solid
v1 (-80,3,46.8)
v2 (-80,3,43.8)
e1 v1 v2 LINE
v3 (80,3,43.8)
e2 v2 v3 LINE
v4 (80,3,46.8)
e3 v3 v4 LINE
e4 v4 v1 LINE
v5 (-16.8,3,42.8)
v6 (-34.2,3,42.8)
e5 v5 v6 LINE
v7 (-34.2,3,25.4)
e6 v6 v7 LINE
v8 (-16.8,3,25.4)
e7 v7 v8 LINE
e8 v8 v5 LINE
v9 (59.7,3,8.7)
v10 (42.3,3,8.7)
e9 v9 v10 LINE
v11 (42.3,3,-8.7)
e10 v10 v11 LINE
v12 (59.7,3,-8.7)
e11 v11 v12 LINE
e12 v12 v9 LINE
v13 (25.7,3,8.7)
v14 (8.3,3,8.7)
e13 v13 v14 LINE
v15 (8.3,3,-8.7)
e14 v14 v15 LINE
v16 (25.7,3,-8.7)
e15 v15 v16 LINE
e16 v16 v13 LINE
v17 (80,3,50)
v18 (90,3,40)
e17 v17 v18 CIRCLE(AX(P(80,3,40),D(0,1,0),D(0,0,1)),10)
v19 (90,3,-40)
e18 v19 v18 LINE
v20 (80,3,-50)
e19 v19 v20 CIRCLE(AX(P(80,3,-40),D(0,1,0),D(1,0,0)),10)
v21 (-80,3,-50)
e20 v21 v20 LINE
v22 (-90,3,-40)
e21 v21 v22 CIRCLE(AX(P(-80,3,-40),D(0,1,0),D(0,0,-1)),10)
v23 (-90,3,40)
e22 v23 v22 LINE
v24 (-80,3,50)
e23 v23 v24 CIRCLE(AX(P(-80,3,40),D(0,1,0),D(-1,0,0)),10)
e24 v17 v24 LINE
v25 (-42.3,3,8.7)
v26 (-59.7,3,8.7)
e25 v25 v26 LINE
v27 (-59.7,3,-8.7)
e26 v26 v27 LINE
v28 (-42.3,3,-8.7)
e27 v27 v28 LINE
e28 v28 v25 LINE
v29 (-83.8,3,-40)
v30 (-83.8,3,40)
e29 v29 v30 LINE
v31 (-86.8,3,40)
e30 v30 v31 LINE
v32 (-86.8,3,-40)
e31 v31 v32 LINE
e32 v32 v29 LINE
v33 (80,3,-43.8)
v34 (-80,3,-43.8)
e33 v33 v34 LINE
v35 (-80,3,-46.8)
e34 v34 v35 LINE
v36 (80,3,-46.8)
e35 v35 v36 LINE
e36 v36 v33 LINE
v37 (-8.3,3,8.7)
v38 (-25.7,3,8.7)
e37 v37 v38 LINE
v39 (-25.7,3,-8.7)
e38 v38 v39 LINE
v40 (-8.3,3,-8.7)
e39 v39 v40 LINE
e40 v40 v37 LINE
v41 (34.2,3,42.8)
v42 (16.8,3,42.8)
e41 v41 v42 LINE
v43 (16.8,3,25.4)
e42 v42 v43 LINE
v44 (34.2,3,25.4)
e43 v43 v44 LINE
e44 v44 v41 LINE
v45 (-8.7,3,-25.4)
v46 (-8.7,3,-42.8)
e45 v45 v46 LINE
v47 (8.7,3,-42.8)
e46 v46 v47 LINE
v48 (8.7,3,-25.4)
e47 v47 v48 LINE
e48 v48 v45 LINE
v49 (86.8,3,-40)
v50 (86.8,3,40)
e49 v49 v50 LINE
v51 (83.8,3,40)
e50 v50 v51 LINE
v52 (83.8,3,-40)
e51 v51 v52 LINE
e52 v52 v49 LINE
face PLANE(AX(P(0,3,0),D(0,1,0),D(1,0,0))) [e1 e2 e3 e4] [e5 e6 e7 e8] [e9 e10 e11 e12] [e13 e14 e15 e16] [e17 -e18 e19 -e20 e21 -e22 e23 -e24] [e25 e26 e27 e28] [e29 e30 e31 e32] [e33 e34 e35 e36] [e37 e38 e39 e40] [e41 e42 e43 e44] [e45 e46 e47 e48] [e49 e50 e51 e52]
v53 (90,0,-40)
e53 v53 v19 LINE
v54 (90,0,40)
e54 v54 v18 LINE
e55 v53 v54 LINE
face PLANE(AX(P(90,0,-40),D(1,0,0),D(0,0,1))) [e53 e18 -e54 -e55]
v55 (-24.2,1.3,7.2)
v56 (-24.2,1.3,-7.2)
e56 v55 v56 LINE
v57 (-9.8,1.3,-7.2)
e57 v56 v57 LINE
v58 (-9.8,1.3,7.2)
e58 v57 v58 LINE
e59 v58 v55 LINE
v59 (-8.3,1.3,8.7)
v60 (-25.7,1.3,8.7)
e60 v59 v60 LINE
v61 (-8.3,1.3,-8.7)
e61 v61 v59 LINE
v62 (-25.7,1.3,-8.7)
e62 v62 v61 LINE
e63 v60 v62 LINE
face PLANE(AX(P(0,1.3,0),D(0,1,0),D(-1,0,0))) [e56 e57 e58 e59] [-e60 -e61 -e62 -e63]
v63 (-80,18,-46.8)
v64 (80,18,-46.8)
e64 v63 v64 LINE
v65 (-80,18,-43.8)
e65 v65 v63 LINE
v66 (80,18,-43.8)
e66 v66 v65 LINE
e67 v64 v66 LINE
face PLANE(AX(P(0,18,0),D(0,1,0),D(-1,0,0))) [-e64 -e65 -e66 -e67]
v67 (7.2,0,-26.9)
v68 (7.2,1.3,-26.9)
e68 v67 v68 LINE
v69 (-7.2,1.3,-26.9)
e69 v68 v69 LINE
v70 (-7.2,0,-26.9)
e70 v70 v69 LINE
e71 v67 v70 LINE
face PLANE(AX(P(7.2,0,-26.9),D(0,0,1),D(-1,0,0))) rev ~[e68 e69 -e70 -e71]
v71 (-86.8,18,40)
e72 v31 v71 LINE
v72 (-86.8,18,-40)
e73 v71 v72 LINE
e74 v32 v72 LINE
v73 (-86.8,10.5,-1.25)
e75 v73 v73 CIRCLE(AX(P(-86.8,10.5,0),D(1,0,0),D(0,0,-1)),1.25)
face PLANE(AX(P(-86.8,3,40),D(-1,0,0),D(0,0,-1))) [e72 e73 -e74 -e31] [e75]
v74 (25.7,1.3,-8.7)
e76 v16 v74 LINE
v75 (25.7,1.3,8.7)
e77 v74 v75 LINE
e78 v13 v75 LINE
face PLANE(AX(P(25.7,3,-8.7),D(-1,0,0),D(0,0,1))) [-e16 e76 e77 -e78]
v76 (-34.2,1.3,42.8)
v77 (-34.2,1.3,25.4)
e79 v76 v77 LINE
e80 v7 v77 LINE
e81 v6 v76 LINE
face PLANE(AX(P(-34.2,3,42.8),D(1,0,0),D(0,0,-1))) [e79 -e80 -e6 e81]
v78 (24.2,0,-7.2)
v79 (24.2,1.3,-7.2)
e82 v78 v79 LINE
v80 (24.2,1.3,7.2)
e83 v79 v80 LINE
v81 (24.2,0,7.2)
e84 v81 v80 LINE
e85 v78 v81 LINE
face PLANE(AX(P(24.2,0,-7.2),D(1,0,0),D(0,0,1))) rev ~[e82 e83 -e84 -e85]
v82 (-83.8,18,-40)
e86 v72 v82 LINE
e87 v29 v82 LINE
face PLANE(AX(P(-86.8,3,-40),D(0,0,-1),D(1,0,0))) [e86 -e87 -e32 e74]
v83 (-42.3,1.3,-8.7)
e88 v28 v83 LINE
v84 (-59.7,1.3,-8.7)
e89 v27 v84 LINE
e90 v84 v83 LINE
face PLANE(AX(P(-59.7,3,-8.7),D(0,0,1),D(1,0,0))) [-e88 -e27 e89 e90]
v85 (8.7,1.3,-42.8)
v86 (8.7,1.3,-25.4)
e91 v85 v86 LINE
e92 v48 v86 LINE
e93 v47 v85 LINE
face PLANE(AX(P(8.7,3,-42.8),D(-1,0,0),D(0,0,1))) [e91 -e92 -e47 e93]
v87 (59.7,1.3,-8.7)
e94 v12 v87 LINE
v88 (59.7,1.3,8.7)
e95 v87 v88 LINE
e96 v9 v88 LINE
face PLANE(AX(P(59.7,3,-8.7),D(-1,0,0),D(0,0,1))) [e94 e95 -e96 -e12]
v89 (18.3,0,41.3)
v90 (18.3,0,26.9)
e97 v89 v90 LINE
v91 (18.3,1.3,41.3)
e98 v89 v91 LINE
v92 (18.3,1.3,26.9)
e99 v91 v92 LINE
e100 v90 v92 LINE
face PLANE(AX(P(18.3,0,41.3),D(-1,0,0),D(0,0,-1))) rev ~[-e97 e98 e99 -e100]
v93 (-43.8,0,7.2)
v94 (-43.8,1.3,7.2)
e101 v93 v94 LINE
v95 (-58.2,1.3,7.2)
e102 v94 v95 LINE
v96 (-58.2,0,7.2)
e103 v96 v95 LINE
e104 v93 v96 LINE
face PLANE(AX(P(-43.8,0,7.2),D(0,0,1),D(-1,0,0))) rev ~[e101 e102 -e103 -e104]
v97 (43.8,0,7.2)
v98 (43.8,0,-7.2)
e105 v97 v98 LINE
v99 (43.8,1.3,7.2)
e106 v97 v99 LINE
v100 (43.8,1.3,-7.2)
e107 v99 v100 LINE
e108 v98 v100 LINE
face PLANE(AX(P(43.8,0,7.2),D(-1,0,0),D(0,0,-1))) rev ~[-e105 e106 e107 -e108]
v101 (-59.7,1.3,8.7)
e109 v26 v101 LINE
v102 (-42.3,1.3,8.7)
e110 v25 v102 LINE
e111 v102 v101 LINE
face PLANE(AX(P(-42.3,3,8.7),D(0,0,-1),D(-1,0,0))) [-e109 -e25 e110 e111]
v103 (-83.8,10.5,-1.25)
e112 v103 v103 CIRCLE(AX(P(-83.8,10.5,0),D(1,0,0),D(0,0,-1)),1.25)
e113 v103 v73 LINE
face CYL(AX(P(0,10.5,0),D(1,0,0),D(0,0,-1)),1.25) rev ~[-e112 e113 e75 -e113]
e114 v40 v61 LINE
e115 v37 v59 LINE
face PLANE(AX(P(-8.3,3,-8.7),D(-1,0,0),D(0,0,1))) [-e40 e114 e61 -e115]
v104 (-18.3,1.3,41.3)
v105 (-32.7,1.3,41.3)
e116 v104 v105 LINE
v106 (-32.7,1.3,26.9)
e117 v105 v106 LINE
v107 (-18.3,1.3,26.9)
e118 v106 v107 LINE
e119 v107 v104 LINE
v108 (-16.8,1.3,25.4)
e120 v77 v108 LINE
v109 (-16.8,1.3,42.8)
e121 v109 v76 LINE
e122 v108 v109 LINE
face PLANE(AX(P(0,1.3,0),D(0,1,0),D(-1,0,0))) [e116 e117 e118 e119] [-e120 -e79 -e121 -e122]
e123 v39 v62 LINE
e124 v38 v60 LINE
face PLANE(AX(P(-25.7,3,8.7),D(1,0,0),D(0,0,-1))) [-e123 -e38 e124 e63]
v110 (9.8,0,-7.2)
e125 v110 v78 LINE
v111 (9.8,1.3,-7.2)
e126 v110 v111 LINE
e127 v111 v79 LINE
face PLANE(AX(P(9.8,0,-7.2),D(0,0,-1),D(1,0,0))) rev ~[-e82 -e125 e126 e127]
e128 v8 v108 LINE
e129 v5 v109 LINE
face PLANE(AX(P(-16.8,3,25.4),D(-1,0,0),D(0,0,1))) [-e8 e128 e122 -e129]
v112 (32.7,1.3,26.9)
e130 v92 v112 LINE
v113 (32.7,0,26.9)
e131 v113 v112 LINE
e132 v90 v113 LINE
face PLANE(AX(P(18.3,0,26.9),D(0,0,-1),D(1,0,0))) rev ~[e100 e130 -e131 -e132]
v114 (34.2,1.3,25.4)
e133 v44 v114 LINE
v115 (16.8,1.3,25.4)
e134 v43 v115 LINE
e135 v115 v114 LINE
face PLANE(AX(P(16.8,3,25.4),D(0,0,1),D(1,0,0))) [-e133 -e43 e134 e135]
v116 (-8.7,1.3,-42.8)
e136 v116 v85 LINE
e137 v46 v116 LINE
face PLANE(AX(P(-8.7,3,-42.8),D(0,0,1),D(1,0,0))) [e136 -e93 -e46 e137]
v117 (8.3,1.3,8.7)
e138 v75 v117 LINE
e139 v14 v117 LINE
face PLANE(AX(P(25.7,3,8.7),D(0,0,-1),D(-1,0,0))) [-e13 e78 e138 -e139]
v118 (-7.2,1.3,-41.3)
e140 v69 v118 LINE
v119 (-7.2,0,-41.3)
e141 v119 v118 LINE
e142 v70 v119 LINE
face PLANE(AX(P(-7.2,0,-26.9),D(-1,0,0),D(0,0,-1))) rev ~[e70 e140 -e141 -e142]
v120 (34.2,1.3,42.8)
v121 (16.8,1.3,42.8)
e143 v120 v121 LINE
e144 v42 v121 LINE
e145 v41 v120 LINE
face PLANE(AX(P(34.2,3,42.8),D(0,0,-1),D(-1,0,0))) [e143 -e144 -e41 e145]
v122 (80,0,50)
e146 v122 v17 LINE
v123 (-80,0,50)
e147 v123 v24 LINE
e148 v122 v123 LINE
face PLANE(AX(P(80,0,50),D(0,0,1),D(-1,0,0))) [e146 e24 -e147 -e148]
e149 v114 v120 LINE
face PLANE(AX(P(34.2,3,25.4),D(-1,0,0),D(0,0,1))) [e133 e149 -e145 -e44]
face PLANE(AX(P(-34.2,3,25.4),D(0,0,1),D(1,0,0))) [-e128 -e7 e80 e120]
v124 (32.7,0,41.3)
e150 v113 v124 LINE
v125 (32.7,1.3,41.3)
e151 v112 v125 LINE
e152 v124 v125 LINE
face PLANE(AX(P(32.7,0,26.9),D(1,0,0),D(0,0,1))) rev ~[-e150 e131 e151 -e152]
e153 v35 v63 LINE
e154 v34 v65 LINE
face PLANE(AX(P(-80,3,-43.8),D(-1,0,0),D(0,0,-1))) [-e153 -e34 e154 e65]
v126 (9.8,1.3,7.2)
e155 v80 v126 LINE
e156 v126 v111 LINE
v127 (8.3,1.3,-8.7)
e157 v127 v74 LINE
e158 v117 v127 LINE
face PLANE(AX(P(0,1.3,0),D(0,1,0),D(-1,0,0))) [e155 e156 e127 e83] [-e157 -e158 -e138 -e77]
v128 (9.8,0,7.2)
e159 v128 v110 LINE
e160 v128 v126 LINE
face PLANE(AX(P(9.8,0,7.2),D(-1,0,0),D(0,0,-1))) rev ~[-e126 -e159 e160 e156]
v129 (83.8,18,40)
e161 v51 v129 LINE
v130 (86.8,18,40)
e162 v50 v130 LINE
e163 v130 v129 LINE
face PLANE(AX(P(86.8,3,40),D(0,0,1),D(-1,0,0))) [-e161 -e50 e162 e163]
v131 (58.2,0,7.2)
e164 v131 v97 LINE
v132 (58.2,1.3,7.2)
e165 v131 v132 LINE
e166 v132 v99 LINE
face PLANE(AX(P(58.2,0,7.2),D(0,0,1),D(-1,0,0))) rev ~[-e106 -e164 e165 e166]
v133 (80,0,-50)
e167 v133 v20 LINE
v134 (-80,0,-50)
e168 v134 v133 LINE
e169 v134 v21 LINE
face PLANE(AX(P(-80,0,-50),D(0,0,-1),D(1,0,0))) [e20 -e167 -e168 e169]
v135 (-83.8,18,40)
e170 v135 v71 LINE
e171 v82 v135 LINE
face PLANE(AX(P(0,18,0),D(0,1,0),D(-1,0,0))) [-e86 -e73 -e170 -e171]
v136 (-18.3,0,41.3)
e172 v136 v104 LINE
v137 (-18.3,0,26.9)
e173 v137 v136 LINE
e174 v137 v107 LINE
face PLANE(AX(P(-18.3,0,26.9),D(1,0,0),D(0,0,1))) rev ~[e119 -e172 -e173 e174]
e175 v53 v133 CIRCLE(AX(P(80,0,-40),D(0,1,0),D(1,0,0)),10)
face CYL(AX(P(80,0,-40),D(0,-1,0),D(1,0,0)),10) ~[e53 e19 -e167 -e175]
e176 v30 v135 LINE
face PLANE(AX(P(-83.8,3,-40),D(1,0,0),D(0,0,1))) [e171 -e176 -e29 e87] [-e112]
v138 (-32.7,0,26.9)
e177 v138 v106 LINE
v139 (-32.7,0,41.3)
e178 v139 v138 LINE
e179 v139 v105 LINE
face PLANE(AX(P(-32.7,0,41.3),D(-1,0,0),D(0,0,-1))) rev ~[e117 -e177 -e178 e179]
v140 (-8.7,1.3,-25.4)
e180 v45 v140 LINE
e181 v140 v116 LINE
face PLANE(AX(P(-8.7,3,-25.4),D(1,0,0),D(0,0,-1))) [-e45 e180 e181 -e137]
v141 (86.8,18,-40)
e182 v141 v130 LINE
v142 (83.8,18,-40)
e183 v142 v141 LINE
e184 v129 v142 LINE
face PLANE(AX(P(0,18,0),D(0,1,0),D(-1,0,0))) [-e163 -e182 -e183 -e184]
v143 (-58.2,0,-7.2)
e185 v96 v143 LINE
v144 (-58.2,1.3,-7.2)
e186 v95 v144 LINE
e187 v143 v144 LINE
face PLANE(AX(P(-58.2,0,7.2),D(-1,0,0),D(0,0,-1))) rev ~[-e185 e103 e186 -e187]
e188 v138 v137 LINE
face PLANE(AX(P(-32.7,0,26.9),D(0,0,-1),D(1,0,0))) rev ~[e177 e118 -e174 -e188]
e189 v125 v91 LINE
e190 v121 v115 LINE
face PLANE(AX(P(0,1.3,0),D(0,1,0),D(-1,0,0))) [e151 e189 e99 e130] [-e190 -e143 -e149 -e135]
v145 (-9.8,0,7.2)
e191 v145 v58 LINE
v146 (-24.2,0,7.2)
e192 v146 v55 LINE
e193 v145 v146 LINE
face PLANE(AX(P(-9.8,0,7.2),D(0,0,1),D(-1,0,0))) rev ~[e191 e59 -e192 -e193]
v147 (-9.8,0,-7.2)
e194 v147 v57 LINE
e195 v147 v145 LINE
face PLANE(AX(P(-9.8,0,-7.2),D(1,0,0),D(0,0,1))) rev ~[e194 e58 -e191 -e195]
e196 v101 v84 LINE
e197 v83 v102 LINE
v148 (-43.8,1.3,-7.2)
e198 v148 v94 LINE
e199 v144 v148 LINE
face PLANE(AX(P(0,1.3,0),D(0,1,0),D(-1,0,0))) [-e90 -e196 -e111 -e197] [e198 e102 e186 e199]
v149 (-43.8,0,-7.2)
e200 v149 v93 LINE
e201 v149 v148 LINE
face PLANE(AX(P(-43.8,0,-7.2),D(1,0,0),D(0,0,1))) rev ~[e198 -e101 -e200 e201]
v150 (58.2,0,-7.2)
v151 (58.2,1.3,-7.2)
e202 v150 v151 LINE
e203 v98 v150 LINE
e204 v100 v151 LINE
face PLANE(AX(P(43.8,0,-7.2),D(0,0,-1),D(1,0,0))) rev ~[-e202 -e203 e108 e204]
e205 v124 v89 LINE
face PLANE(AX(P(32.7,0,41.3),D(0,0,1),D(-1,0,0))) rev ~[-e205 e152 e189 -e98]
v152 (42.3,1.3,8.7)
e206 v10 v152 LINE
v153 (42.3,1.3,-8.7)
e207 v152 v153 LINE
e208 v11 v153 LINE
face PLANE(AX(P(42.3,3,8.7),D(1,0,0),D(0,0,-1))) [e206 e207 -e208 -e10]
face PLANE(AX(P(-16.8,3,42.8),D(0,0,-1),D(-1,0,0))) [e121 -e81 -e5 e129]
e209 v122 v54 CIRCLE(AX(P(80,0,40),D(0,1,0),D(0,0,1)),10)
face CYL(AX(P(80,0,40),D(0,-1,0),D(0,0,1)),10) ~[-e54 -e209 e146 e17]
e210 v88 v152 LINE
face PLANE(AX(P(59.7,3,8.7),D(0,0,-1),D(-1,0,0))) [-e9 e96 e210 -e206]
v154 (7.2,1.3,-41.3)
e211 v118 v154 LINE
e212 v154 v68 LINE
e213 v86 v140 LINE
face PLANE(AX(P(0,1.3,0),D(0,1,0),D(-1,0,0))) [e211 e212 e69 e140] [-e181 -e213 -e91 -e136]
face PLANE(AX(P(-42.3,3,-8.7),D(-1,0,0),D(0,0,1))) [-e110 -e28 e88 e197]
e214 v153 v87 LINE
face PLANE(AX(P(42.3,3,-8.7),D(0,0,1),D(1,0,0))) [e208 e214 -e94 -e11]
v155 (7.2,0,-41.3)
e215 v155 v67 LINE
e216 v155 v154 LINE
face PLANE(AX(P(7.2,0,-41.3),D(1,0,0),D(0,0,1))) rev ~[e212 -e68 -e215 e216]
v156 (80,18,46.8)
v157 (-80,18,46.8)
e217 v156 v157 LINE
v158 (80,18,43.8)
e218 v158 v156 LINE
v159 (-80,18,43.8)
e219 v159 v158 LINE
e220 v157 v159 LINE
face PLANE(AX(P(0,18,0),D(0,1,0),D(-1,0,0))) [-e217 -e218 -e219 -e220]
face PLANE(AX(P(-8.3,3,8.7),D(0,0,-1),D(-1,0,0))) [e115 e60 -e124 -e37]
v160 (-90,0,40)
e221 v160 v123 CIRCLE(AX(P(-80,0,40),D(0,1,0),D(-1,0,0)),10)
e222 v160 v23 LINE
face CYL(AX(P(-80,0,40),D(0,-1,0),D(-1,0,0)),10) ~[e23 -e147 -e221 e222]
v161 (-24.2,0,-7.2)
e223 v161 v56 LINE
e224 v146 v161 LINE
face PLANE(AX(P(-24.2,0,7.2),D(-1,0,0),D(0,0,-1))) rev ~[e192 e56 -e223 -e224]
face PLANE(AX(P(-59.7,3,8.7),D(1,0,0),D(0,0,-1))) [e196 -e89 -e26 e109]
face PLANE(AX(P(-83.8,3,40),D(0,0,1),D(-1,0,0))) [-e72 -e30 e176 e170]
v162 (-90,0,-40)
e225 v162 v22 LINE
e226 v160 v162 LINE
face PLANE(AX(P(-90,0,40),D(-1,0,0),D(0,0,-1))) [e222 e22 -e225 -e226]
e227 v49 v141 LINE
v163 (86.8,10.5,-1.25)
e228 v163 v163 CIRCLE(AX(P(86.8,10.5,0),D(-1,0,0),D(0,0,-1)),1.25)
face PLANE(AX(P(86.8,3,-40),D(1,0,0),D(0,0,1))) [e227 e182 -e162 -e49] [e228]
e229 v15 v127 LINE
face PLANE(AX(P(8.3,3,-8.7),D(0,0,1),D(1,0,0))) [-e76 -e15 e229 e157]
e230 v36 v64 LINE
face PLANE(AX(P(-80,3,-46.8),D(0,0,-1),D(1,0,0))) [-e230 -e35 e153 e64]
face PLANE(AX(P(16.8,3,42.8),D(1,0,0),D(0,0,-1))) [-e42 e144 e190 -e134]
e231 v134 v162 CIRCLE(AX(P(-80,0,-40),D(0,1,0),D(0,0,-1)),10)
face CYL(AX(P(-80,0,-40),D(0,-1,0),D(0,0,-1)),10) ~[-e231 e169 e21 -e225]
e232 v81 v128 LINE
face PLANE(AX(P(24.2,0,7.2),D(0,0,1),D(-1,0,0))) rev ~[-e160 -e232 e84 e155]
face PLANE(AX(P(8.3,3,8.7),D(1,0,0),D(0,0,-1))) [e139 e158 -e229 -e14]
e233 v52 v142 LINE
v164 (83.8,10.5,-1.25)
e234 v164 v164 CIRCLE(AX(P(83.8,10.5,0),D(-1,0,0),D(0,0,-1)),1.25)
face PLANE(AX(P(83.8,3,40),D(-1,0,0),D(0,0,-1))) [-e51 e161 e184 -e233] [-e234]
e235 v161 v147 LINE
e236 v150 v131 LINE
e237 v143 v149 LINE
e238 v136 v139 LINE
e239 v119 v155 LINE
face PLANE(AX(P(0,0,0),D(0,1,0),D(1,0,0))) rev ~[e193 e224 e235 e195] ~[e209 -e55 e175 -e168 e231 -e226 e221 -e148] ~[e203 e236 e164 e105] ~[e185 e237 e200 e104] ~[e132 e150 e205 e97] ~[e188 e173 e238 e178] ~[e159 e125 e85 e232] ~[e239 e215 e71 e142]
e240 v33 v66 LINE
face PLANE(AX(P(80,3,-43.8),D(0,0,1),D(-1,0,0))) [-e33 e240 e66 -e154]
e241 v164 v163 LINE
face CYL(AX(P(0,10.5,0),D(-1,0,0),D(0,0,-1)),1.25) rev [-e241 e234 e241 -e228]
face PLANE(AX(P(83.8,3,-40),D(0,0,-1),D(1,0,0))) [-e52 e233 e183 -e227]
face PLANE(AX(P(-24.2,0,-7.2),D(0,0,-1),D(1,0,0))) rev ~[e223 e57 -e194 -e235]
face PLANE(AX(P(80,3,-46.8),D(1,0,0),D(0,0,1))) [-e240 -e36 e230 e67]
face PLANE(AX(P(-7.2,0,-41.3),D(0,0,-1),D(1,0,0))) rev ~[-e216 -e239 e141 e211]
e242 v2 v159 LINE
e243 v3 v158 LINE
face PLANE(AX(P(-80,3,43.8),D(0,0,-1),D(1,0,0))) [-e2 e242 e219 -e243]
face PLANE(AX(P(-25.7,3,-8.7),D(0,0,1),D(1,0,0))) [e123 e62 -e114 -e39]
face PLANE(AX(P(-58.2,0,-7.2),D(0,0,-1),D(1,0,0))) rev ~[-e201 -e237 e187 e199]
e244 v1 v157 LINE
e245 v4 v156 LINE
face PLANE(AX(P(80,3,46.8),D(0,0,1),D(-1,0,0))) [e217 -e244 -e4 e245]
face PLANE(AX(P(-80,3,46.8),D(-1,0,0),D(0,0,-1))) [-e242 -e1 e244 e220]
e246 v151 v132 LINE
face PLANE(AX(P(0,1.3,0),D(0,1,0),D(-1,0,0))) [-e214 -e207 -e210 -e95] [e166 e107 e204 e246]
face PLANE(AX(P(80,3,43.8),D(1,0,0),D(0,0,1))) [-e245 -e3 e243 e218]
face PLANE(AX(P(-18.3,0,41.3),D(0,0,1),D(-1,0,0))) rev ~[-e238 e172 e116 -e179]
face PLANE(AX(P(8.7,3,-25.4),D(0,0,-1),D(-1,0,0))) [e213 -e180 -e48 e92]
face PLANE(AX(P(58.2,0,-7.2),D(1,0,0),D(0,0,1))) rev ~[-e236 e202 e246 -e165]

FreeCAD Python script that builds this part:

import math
import FreeCAD as App
import Part
import Sketcher

V = App.Vector

doc = App.newDocument("Part")
params = doc.addObject("Spreadsheet::Sheet", "Params")
for row, (alias, value) in enumerate([
    ("sketch1_radius", "10 mm"),
    ("sketch1_width", "160 mm"),
    ("pad1_length", "3 mm"),
    ("sketch2_width", "3 mm"),
    ("sketch2_width2", "160 mm"),
    ("sketch2_height", "80 mm"),
    ("pad2_length", "15 mm"),
    ("sketch3_width", "14.4 mm"),
    ("pocket1_length", "1.7 mm"),
    ("sketch4_width", "14.4 mm"),
    ("pocket2_length", "3 mm"),
    ("sketch5_diameter", "2.5 mm"),
], start=1):
    params.set(f"A{row}", alias)
    params.set(f"B{row}", "=" + value)
    params.setAlias(f"B{row}", alias)

body = doc.addObject("PartDesign::Body", "Body")

# Sketch on XZ plane
sketch1 = body.newObject("Sketcher::SketchObject", "Sketch")
sketch1.AttachmentSupport = (doc.getObject("XZ_Plane"), [""])
sketch1.MapMode = "FlatFace"
sketch1.addGeometry([
    Part.LineSegment(V(80, -50, 0), V(-80, -50, 0)),  # 0
    Part.ArcOfCircle(Part.Circle(V(-80, -40, 0), V(0, 0, 1), 10), math.radians(180), math.radians(270)),  # 1
    Part.LineSegment(V(-90, -40, 0), V(-90, 40, 0)),  # 2
    Part.ArcOfCircle(Part.Circle(V(-80, 40, 0), V(0, 0, 1), 10), math.radians(90), math.radians(180)),  # 3
    Part.LineSegment(V(-80, 50, 0), V(80, 50, 0)),  # 4
    Part.ArcOfCircle(Part.Circle(V(80, 40, 0), V(0, 0, 1), 10), math.radians(0), math.radians(90)),  # 5
    Part.LineSegment(V(90, 40, 0), V(90, -40, 0)),  # 6
    Part.ArcOfCircle(Part.Circle(V(80, -40, 0), V(0, 0, 1), 10), math.radians(-90), math.radians(0)),  # 7
], False)
sketch1.addConstraint([
    Sketcher.Constraint("Tangent", 0, 2, 1, 2),
    Sketcher.Constraint("Tangent", 1, 1, 2, 1),
    Sketcher.Constraint("Tangent", 2, 2, 3, 2),
    Sketcher.Constraint("Tangent", 3, 1, 4, 1),
    Sketcher.Constraint("Tangent", 4, 2, 5, 2),
    Sketcher.Constraint("Tangent", 5, 1, 6, 1),
    Sketcher.Constraint("Tangent", 6, 2, 7, 2),
    Sketcher.Constraint("Tangent", 7, 1, 0, 1),
    Sketcher.Constraint("Horizontal", 0),
    Sketcher.Constraint("Vertical", 2),
    Sketcher.Constraint("Horizontal", 4),
    Sketcher.Constraint("Vertical", 6),
    Sketcher.Constraint("Equal", 1, 3),
    Sketcher.Constraint("Equal", 3, 5),
    Sketcher.Constraint("Equal", 5, 7),
    Sketcher.Constraint("Symmetric", 1, 3, 5, 3, -1, 1),
    Sketcher.Constraint("Radius", 1, 10.0),
    Sketcher.Constraint("DistanceY", 0, 2, 3, 1, 100.0),
    Sketcher.Constraint("DistanceX", 0, 2, 0, 1, 160.0),
])
sketch1.setExpression("Constraints[16]", "Params.sketch1_radius")
sketch1.setExpression("Constraints[18]", "Params.sketch1_width")
pad1 = body.newObject("PartDesign::Pad", "Pad")
pad1.Profile = sketch1
pad1.setExpression("Length", "Params.pad1_length")
pad1.Reversed = True

# Sketch on XZ plane
sketch2 = body.newObject("Sketcher::SketchObject", "Sketch001")
sketch2.AttachmentSupport = (doc.getObject("XZ_Plane"), [""])
sketch2.MapMode = "FlatFace"
sketch2.AttachmentOffset = App.Placement(V(0, 0, -3), App.Rotation())
sketch2.addGeometry([
    Part.LineSegment(V(-83.8, -40, 0), V(-86.8, -40, 0)),  # 0
    Part.LineSegment(V(-86.8, -40, 0), V(-86.8, 40, 0)),  # 1
    Part.LineSegment(V(-86.8, 40, 0), V(-83.8, 40, 0)),  # 2
    Part.LineSegment(V(-83.8, 40, 0), V(-83.8, -40, 0)),  # 3
    Part.LineSegment(V(80, -46.8, 0), V(-80, -46.8, 0)),  # 4
    Part.LineSegment(V(-80, -46.8, 0), V(-80, -43.8, 0)),  # 5
    Part.LineSegment(V(-80, -43.8, 0), V(80, -43.8, 0)),  # 6
    Part.LineSegment(V(80, -43.8, 0), V(80, -46.8, 0)),  # 7
    Part.LineSegment(V(80, 43.8, 0), V(-80, 43.8, 0)),  # 8
    Part.LineSegment(V(-80, 43.8, 0), V(-80, 46.8, 0)),  # 9
    Part.LineSegment(V(-80, 46.8, 0), V(80, 46.8, 0)),  # 10
    Part.LineSegment(V(80, 46.8, 0), V(80, 43.8, 0)),  # 11
    Part.LineSegment(V(86.8, -40, 0), V(83.8, -40, 0)),  # 12
    Part.LineSegment(V(83.8, -40, 0), V(83.8, 40, 0)),  # 13
    Part.LineSegment(V(83.8, 40, 0), V(86.8, 40, 0)),  # 14
    Part.LineSegment(V(86.8, 40, 0), V(86.8, -40, 0)),  # 15
], False)
sketch2.addConstraint([
    Sketcher.Constraint("Coincident", 0, 2, 1, 1),
    Sketcher.Constraint("Coincident", 1, 2, 2, 1),
    Sketcher.Constraint("Coincident", 2, 2, 3, 1),
    Sketcher.Constraint("Coincident", 3, 2, 0, 1),
    Sketcher.Constraint("Coincident", 4, 2, 5, 1),
    Sketcher.Constraint("Coincident", 5, 2, 6, 1),
    Sketcher.Constraint("Coincident", 6, 2, 7, 1),
    Sketcher.Constraint("Coincident", 7, 2, 4, 1),
    Sketcher.Constraint("Coincident", 8, 2, 9, 1),
    Sketcher.Constraint("Coincident", 9, 2, 10, 1),
    Sketcher.Constraint("Coincident", 10, 2, 11, 1),
    Sketcher.Constraint("Coincident", 11, 2, 8, 1),
    Sketcher.Constraint("Coincident", 12, 2, 13, 1),
    Sketcher.Constraint("Coincident", 13, 2, 14, 1),
    Sketcher.Constraint("Coincident", 14, 2, 15, 1),
    Sketcher.Constraint("Coincident", 15, 2, 12, 1),
    Sketcher.Constraint("Horizontal", 0),
    Sketcher.Constraint("Vertical", 1),
    Sketcher.Constraint("Horizontal", 2),
    Sketcher.Constraint("Vertical", 3),
    Sketcher.Constraint("Horizontal", 4),
    Sketcher.Constraint("Vertical", 5),
    Sketcher.Constraint("Horizontal", 6),
    Sketcher.Constraint("Vertical", 7),
    Sketcher.Constraint("Horizontal", 8),
    Sketcher.Constraint("Vertical", 9),
    Sketcher.Constraint("Horizontal", 10),
    Sketcher.Constraint("Vertical", 11),
    Sketcher.Constraint("Horizontal", 12),
    Sketcher.Constraint("Vertical", 13),
    Sketcher.Constraint("Horizontal", 14),
    Sketcher.Constraint("Vertical", 15),
    Sketcher.Constraint("Symmetric", 6, 2, 8, 2, -1, 1),
    Sketcher.Constraint("Symmetric", 4, 2, 10, 2, -1, 1),
    Sketcher.Constraint("Symmetric", 2, 2, 12, 2, -1, 1),
    Sketcher.Constraint("Symmetric", 0, 2, 14, 2, -1, 1),
    Sketcher.Constraint("Horizontal", 3, 2, 12, 2),
    Sketcher.Constraint("Vertical", 5, 2, 8, 2),
    Sketcher.Constraint("Equal", 14, 5),
    Sketcher.Constraint("DistanceX", 0, 2, 0, 1, 3.0),
    Sketcher.Constraint("DistanceX", 4, 2, 4, 1, 160.0),
    Sketcher.Constraint("DistanceY", 1, 1, 1, 2, 80.0),
    Sketcher.Constraint("DistanceX", 0, 2, -1, 1, 86.8),
    Sketcher.Constraint("DistanceY", 4, 2, -1, 1, 46.8),
])
sketch2.setExpression("Constraints[39]", "Params.sketch2_width")
sketch2.setExpression("Constraints[40]", "Params.sketch2_width2")
sketch2.setExpression("Constraints[41]", "Params.sketch2_height")
pad2 = body.newObject("PartDesign::Pad", "Pad001")
pad2.Profile = sketch2
pad2.setExpression("Length", "Params.pad2_length")
pad2.Reversed = True

# Sketch on XZ plane
sketch3 = body.newObject("Sketcher::SketchObject", "Sketch002")
sketch3.AttachmentSupport = (doc.getObject("XZ_Plane"), [""])
sketch3.MapMode = "FlatFace"
sketch3.AttachmentOffset = App.Placement(V(0, 0, -3), App.Rotation())
sketch3.addGeometry([
    Part.LineSegment(V(42, 9, 0), V(60, 9, 0)),  # 0
    Part.LineSegment(V(60, 9, 0), V(60, -9, 0)),  # 1
    Part.LineSegment(V(60, -9, 0), V(42, -9, 0)),  # 2
    Part.LineSegment(V(42, -9, 0), V(42, 9, 0)),  # 3
    Part.LineSegment(V(44, -7, 0), V(58, -7, 0)),  # 4
    Part.LineSegment(V(58, -7, 0), V(58, 7, 0)),  # 5
    Part.LineSegment(V(58, 7, 0), V(44, 7, 0)),  # 6
    Part.LineSegment(V(44, 7, 0), V(44, -7, 0)),  # 7
    Part.LineSegment(V(-8, 9, 0), V(-8, -9, 0)),  # 8
    Part.LineSegment(V(-8, -9, 0), V(-26, -9, 0)),  # 9
    Part.LineSegment(V(-26, -9, 0), V(-26, 9, 0)),  # 10
    Part.LineSegment(V(-26, 9, 0), V(-8, 9, 0)),  # 11
    Part.LineSegment(V(-10, 7, 0), V(-24, 7, 0)),  # 12
    Part.LineSegment(V(-24, 7, 0), V(-24, -7, 0)),  # 13
    Part.LineSegment(V(-24, -7, 0), V(-10, -7, 0)),  # 14
    Part.LineSegment(V(-10, -7, 0), V(-10, 7, 0)),  # 15
    Part.LineSegment(V(34, 25, 0), V(17, 25, 0)),  # 16
    Part.LineSegment(V(17, 25, 0), V(17, 43, 0)),  # 17
    Part.LineSegment(V(17, 43, 0), V(34, 43, 0)),  # 18
    Part.LineSegment(V(34, 43, 0), V(34, 25, 0)),  # 19
    Part.LineSegment(V(33, 27, 0), V(33, 41, 0)),  # 20
    Part.LineSegment(V(33, 41, 0), V(18, 41, 0)),  # 21
    Part.LineSegment(V(18, 41, 0), V(18, 27, 0)),  # 22
    Part.LineSegment(V(18, 27, 0), V(33, 27, 0)),  # 23
    Part.LineSegment(V(-34, 25, 0), V(-34, 43, 0)),  # 24
    Part.LineSegment(V(-34, 43, 0), V(-17, 43, 0)),  # 25
    Part.LineSegment(V(-17, 43, 0), V(-17, 25, 0)),  # 26
    Part.LineSegment(V(-17, 25, 0), V(-34, 25, 0)),  # 27
    Part.LineSegment(V(-18, 27, 0), V(-18, 41, 0)),  # 28
    Part.LineSegment(V(-18, 41, 0), V(-33, 41, 0)),  # 29
    Part.LineSegment(V(-33, 41, 0), V(-33, 27, 0)),  # 30
    Part.LineSegment(V(-33, 27, 0), V(-18, 27, 0)),  # 31
    Part.LineSegment(V(9, -25, 0), V(9, -43, 0)),  # 32
    Part.LineSegment(V(9, -43, 0), V(-9, -43, 0)),  # 33
    Part.LineSegment(V(-9, -43, 0), V(-9, -25, 0)),  # 34
    Part.LineSegment(V(-9, -25, 0), V(9, -25, 0)),  # 35
    Part.LineSegment(V(-7, -41, 0), V(7, -41, 0)),  # 36
    Part.LineSegment(V(7, -41, 0), V(7, -27, 0)),  # 37
    Part.LineSegment(V(7, -27, 0), V(-7, -27, 0)),  # 38
    Part.LineSegment(V(-7, -27, 0), V(-7, -41, 0)),  # 39
    Part.LineSegment(V(-42, 9, 0), V(-42, -9, 0)),  # 40
    Part.LineSegment(V(-42, -9, 0), V(-60, -9, 0)),  # 41
    Part.LineSegment(V(-60, -9, 0), V(-60, 9, 0)),  # 42
    Part.LineSegment(V(-60, 9, 0), V(-42, 9, 0)),  # 43
    Part.LineSegment(V(-44, -7, 0), V(-44, 7, 0)),  # 44
    Part.LineSegment(V(-44, 7, 0), V(-58, 7, 0)),  # 45
    Part.LineSegment(V(-58, 7, 0), V(-58, -7, 0)),  # 46
    Part.LineSegment(V(-58, -7, 0), V(-44, -7, 0)),  # 47
    Part.LineSegment(V(8, 9, 0), V(26, 9, 0)),  # 48
    Part.LineSegment(V(26, 9, 0), V(26, -9, 0)),  # 49
    Part.LineSegment(V(26, -9, 0), V(8, -9, 0)),  # 50
    Part.LineSegment(V(8, -9, 0), V(8, 9, 0)),  # 51
    Part.LineSegment(V(24, 7, 0), V(10, 7, 0)),  # 52
    Part.LineSegment(V(10, 7, 0), V(10, -7, 0)),  # 53
    Part.LineSegment(V(10, -7, 0), V(24, -7, 0)),  # 54
    Part.LineSegment(V(24, -7, 0), V(24, 7, 0)),  # 55
], False)
sketch3.addConstraint([
    Sketcher.Constraint("Coincident", 0, 2, 1, 1),
    Sketcher.Constraint("Coincident", 1, 2, 2, 1),
    Sketcher.Constraint("Coincident", 2, 2, 3, 1),
    Sketcher.Constraint("Coincident", 3, 2, 0, 1),
    Sketcher.Constraint("Coincident", 4, 2, 5, 1),
    Sketcher.Constraint("Coincident", 5, 2, 6, 1),
    Sketcher.Constraint("Coincident", 6, 2, 7, 1),
    Sketcher.Constraint("Coincident", 7, 2, 4, 1),
    Sketcher.Constraint("Coincident", 8, 2, 9, 1),
    Sketcher.Constraint("Coincident", 9, 2, 10, 1),
    Sketcher.Constraint("Coincident", 10, 2, 11, 1),
    Sketcher.Constraint("Coincident", 11, 2, 8, 1),
    Sketcher.Constraint("Coincident", 12, 2, 13, 1),
    Sketcher.Constraint("Coincident", 13, 2, 14, 1),
    Sketcher.Constraint("Coincident", 14, 2, 15, 1),
    Sketcher.Constraint("Coincident", 15, 2, 12, 1),
    Sketcher.Constraint("Coincident", 16, 2, 17, 1),
    Sketcher.Constraint("Coincident", 17, 2, 18, 1),
    Sketcher.Constraint("Coincident", 18, 2, 19, 1),
    Sketcher.Constraint("Coincident", 19, 2, 16, 1),
    Sketcher.Constraint("Coincident", 20, 2, 21, 1),
    Sketcher.Constraint("Coincident", 21, 2, 22, 1),
    Sketcher.Constraint("Coincident", 22, 2, 23, 1),
    Sketcher.Constraint("Coincident", 23, 2, 20, 1),
    Sketcher.Constraint("Coincident", 24, 2, 25, 1),
    Sketcher.Constraint("Coincident", 25, 2, 26, 1),
    Sketcher.Constraint("Coincident", 26, 2, 27, 1),
    Sketcher.Constraint("Coincident", 27, 2, 24, 1),
    Sketcher.Constraint("Coincident", 28, 2, 29, 1),
    Sketcher.Constraint("Coincident", 29, 2, 30, 1),
    Sketcher.Constraint("Coincident", 30, 2, 31, 1),
    Sketcher.Constraint("Coincident", 31, 2, 28, 1),
    Sketcher.Constraint("Coincident", 32, 2, 33, 1),
    Sketcher.Constraint("Coincident", 33, 2, 34, 1),
    Sketcher.Constraint("Coincident", 34, 2, 35, 1),
    Sketcher.Constraint("Coincident", 35, 2, 32, 1),
    Sketcher.Constraint("Coincident", 36, 2, 37, 1),
    Sketcher.Constraint("Coincident", 37, 2, 38, 1),
    Sketcher.Constraint("Coincident", 38, 2, 39, 1),
    Sketcher.Constraint("Coincident", 39, 2, 36, 1),
    Sketcher.Constraint("Coincident", 40, 2, 41, 1),
    Sketcher.Constraint("Coincident", 41, 2, 42, 1),
    Sketcher.Constraint("Coincident", 42, 2, 43, 1),
    Sketcher.Constraint("Coincident", 43, 2, 40, 1),
    Sketcher.Constraint("Coincident", 44, 2, 45, 1),
    Sketcher.Constraint("Coincident", 45, 2, 46, 1),
    Sketcher.Constraint("Coincident", 46, 2, 47, 1),
    Sketcher.Constraint("Coincident", 47, 2, 44, 1),
    Sketcher.Constraint("Coincident", 48, 2, 49, 1),
    Sketcher.Constraint("Coincident", 49, 2, 50, 1),
    Sketcher.Constraint("Coincident", 50, 2, 51, 1),
    Sketcher.Constraint("Coincident", 51, 2, 48, 1),
    Sketcher.Constraint("Coincident", 52, 2, 53, 1),
    Sketcher.Constraint("Coincident", 53, 2, 54, 1),
    Sketcher.Constraint("Coincident", 54, 2, 55, 1),
    Sketcher.Constraint("Coincident", 55, 2, 52, 1),
    Sketcher.Constraint("Horizontal", 0),
    Sketcher.Constraint("Vertical", 1),
    Sketcher.Constraint("Horizontal", 2),
    Sketcher.Constraint("Vertical", 3),
    Sketcher.Constraint("Horizontal", 4),
    Sketcher.Constraint("Vertical", 5),
    Sketcher.Constraint("Horizontal", 6),
    Sketcher.Constraint("Vertical", 7),
    Sketcher.Constraint("Vertical", 8),
    Sketcher.Constraint("Horizontal", 9),
    Sketcher.Constraint("Vertical", 10),
    Sketcher.Constraint("Horizontal", 11),
    Sketcher.Constraint("Horizontal", 12),
    Sketcher.Constraint("Vertical", 13),
    Sketcher.Constraint("Horizontal", 14),
    Sketcher.Constraint("Vertical", 15),
    Sketcher.Constraint("Horizontal", 16),
    Sketcher.Constraint("Vertical", 17),
    Sketcher.Constraint("Horizontal", 18),
    Sketcher.Constraint("Vertical", 19),
    Sketcher.Constraint("Vertical", 20),
    Sketcher.Constraint("Horizontal", 21),
    Sketcher.Constraint("Vertical", 22),
    Sketcher.Constraint("Horizontal", 23),
    Sketcher.Constraint("Vertical", 24),
    Sketcher.Constraint("Horizontal", 25),
    Sketcher.Constraint("Vertical", 26),
    Sketcher.Constraint("Horizontal", 27),
    Sketcher.Constraint("Vertical", 28),
    Sketcher.Constraint("Horizontal", 29),
    Sketcher.Constraint("Vertical", 30),
    Sketcher.Constraint("Horizontal", 31),
    Sketcher.Constraint("Vertical", 32),
    Sketcher.Constraint("Horizontal", 33),
    Sketcher.Constraint("Vertical", 34),
    Sketcher.Constraint("Horizontal", 35),
    Sketcher.Constraint("Horizontal", 36),
    Sketcher.Constraint("Vertical", 37),
    Sketcher.Constraint("Horizontal", 38),
    Sketcher.Constraint("Vertical", 39),
    Sketcher.Constraint("Vertical", 40),
    Sketcher.Constraint("Horizontal", 41),
    Sketcher.Constraint("Vertical", 42),
    Sketcher.Constraint("Horizontal", 43),
    Sketcher.Constraint("Vertical", 44),
    Sketcher.Constraint("Horizontal", 45),
    Sketcher.Constraint("Vertical", 46),
    Sketcher.Constraint("Horizontal", 47),
    Sketcher.Constraint("Horizontal", 48),
    Sketcher.Constraint("Vertical", 49),
    Sketcher.Constraint("Horizontal", 50),
    Sketcher.Constraint("Vertical", 51),
    Sketcher.Constraint("Horizontal", 52),
    Sketcher.Constraint("Vertical", 53),
    Sketcher.Constraint("Horizontal", 54),
    Sketcher.Constraint("Vertical", 55),
    Sketcher.Constraint("Symmetric", 3, 2, 40, 2, -1, 1),
    Sketcher.Constraint("Symmetric", 1, 2, 42, 2, -1, 1),
    Sketcher.Constraint("Symmetric", 7, 2, 44, 2, -1, 1),
    Sketcher.Constraint("Symmetric", 5, 2, 46, 2, -1, 1),
    Sketcher.Constraint("Symmetric", 9, 2, 48, 2, -1, 1),
    Sketcher.Constraint("Symmetric", 11, 2, 50, 2, -1, 1),
    Sketcher.Constraint("Symmetric", 14, 2, 52, 2, -1, 1),
    Sketcher.Constraint("Symmetric", 12, 2, 54, 2, -1, 1),
    Sketcher.Constraint("Symmetric", 18, 2, 24, 2, -2),
    Sketcher.Constraint("Symmetric", 16, 2, 26, 2, -2),
    Sketcher.Constraint("Symmetric", 21, 2, 28, 2, -2),
    Sketcher.Constraint("Symmetric", 23, 2, 30, 2, -2),
    Sketcher.Constraint("Horizontal", 2, 2, 8, 2),
    Sketcher.Constraint("Horizontal", 3, 2, 10, 2),
    Sketcher.Constraint("Horizontal", 6, 2, 12, 2),
    Sketcher.Constraint("Horizontal", 7, 2, 13, 2),
    Sketcher.Constraint("Horizontal", 9, 2, 40, 2),
    Sketcher.Constraint("Horizontal", 15, 2, 44, 2),
    Sketcher.Constraint("Equal", 2, 9),
    Sketcher.Constraint("Equal", 6, 12),
    Sketcher.Constraint("Equal", 11, 16),
    Sketcher.Constraint("Equal", 14, 21),
    Sketcher.Constraint("Equal", 27, 33),
    Sketcher.Constraint("Equal", 31, 36),
    Sketcher.Constraint("Equal", 50, 1),
    Sketcher.Constraint("Equal", 54, 5),
    Sketcher.Constraint("Equal", 10, 17),
    Sketcher.Constraint("Equal", 15, 20),
    Sketcher.Constraint("Equal", 26, 32),
    Sketcher.Constraint("Equal", 30, 37),
    Sketcher.Constraint("DistanceX", 4, 1, 4, 2, 14.4),
    Sketcher.Constraint("DistanceX", 8, 2, 32, 2, 17.0),
    Sketcher.Constraint("DistanceX", 41, 2, 9, 2, 34.0),
    Sketcher.Constraint("DistanceX", 35, 2, 49, 2, 17.0),
    Sketcher.Constraint("DistanceX", 4, 2, 1, 2, 1.5),
    Sketcher.Constraint("DistanceY", 1, 2, 4, 2, 1.5),
    Sketcher.Constraint("DistanceX", 10, 2, 12, 2, 1.5),
    Sketcher.Constraint("DistanceX", 16, 2, 3, 2, 25.5),
    Sketcher.Constraint("DistanceX", 20, 2, 18, 2, 1.5),
    Sketcher.Constraint("DistanceY", 20, 2, 18, 2, 1.5),
    Sketcher.Constraint("DistanceX", 36, 2, 32, 2, 1.5),
    Sketcher.Constraint("DistanceY", 32, 2, 36, 2, 1.5),
    Sketcher.Constraint("DistanceY", 13, 2, 24, 2, 50.0),
    Sketcher.Constraint("DistanceY", 32, 2, -1, 1, 42.8),
])
sketch3.setExpression("Constraints[142]", "Params.sketch3_width")
pocket1 = body.newObject("PartDesign::Pocket", "Pocket")
pocket1.Profile = sketch3
pocket1.setExpression("Length", "Params.pocket1_length")
pocket1.Reversed = True

# Sketch on XZ plane
sketch4 = body.newObject("Sketcher::SketchObject", "Sketch003")
sketch4.AttachmentSupport = (doc.getObject("XZ_Plane"), [""])
sketch4.MapMode = "FlatFace"
sketch4.addGeometry([
    Part.LineSegment(V(58, 7, 0), V(58, -7, 0)),  # 0
    Part.LineSegment(V(58, -7, 0), V(44, -7, 0)),  # 1
    Part.LineSegment(V(44, -7, 0), V(44, 7, 0)),  # 2
    Part.LineSegment(V(44, 7, 0), V(58, 7, 0)),  # 3
    Part.LineSegment(V(-24, -7, 0), V(-24, 7, 0)),  # 4
    Part.LineSegment(V(-24, 7, 0), V(-10, 7, 0)),  # 5
    Part.LineSegment(V(-10, 7, 0), V(-10, -7, 0)),  # 6
    Part.LineSegment(V(-10, -7, 0), V(-24, -7, 0)),  # 7
    Part.LineSegment(V(18, 41, 0), V(33, 41, 0)),  # 8
    Part.LineSegment(V(33, 41, 0), V(33, 27, 0)),  # 9
    Part.LineSegment(V(33, 27, 0), V(18, 27, 0)),  # 10
    Part.LineSegment(V(18, 27, 0), V(18, 41, 0)),  # 11
    Part.LineSegment(V(-33, 41, 0), V(-18, 41, 0)),  # 12
    Part.LineSegment(V(-18, 41, 0), V(-18, 27, 0)),  # 13
    Part.LineSegment(V(-18, 27, 0), V(-33, 27, 0)),  # 14
    Part.LineSegment(V(-33, 27, 0), V(-33, 41, 0)),  # 15
    Part.LineSegment(V(7, -27, 0), V(7, -41, 0)),  # 16
    Part.LineSegment(V(7, -41, 0), V(-7, -41, 0)),  # 17
    Part.LineSegment(V(-7, -41, 0), V(-7, -27, 0)),  # 18
    Part.LineSegment(V(-7, -27, 0), V(7, -27, 0)),  # 19
    Part.LineSegment(V(-58, 7, 0), V(-44, 7, 0)),  # 20
    Part.LineSegment(V(-44, 7, 0), V(-44, -7, 0)),  # 21
    Part.LineSegment(V(-44, -7, 0), V(-58, -7, 0)),  # 22
    Part.LineSegment(V(-58, -7, 0), V(-58, 7, 0)),  # 23
    Part.LineSegment(V(10, -7, 0), V(10, 7, 0)),  # 24
    Part.LineSegment(V(10, 7, 0), V(24, 7, 0)),  # 25
    Part.LineSegment(V(24, 7, 0), V(24, -7, 0)),  # 26
    Part.LineSegment(V(24, -7, 0), V(10, -7, 0)),  # 27
], False)
sketch4.addConstraint([
    Sketcher.Constraint("Coincident", 0, 2, 1, 1),
    Sketcher.Constraint("Coincident", 1, 2, 2, 1),
    Sketcher.Constraint("Coincident", 2, 2, 3, 1),
    Sketcher.Constraint("Coincident", 3, 2, 0, 1),
    Sketcher.Constraint("Coincident", 4, 2, 5, 1),
    Sketcher.Constraint("Coincident", 5, 2, 6, 1),
    Sketcher.Constraint("Coincident", 6, 2, 7, 1),
    Sketcher.Constraint("Coincident", 7, 2, 4, 1),
    Sketcher.Constraint("Coincident", 8, 2, 9, 1),
    Sketcher.Constraint("Coincident", 9, 2, 10, 1),
    Sketcher.Constraint("Coincident", 10, 2, 11, 1),
    Sketcher.Constraint("Coincident", 11, 2, 8, 1),
    Sketcher.Constraint("Coincident", 12, 2, 13, 1),
    Sketcher.Constraint("Coincident", 13, 2, 14, 1),
    Sketcher.Constraint("Coincident", 14, 2, 15, 1),
    Sketcher.Constraint("Coincident", 15, 2, 12, 1),
    Sketcher.Constraint("Coincident", 16, 2, 17, 1),
    Sketcher.Constraint("Coincident", 17, 2, 18, 1),
    Sketcher.Constraint("Coincident", 18, 2, 19, 1),
    Sketcher.Constraint("Coincident", 19, 2, 16, 1),
    Sketcher.Constraint("Coincident", 20, 2, 21, 1),
    Sketcher.Constraint("Coincident", 21, 2, 22, 1),
    Sketcher.Constraint("Coincident", 22, 2, 23, 1),
    Sketcher.Constraint("Coincident", 23, 2, 20, 1),
    Sketcher.Constraint("Coincident", 24, 2, 25, 1),
    Sketcher.Constraint("Coincident", 25, 2, 26, 1),
    Sketcher.Constraint("Coincident", 26, 2, 27, 1),
    Sketcher.Constraint("Coincident", 27, 2, 24, 1),
    Sketcher.Constraint("Vertical", 0),
    Sketcher.Constraint("Horizontal", 1),
    Sketcher.Constraint("Vertical", 2),
    Sketcher.Constraint("Horizontal", 3),
    Sketcher.Constraint("Vertical", 4),
    Sketcher.Constraint("Horizontal", 5),
    Sketcher.Constraint("Vertical", 6),
    Sketcher.Constraint("Horizontal", 7),
    Sketcher.Constraint("Horizontal", 8),
    Sketcher.Constraint("Vertical", 9),
    Sketcher.Constraint("Horizontal", 10),
    Sketcher.Constraint("Vertical", 11),
    Sketcher.Constraint("Horizontal", 12),
    Sketcher.Constraint("Vertical", 13),
    Sketcher.Constraint("Horizontal", 14),
    Sketcher.Constraint("Vertical", 15),
    Sketcher.Constraint("Vertical", 16),
    Sketcher.Constraint("Horizontal", 17),
    Sketcher.Constraint("Vertical", 18),
    Sketcher.Constraint("Horizontal", 19),
    Sketcher.Constraint("Horizontal", 20),
    Sketcher.Constraint("Vertical", 21),
    Sketcher.Constraint("Horizontal", 22),
    Sketcher.Constraint("Vertical", 23),
    Sketcher.Constraint("Vertical", 24),
    Sketcher.Constraint("Horizontal", 25),
    Sketcher.Constraint("Vertical", 26),
    Sketcher.Constraint("Horizontal", 27),
    Sketcher.Constraint("Symmetric", 1, 2, 20, 2, -1, 1),
    Sketcher.Constraint("Symmetric", 3, 2, 22, 2, -1, 1),
    Sketcher.Constraint("Symmetric", 6, 2, 24, 2, -1, 1),
    Sketcher.Constraint("Symmetric", 4, 2, 26, 2, -1, 1),
    Sketcher.Constraint("Symmetric", 11, 2, 12, 2, -2),
    Sketcher.Constraint("Symmetric", 9, 2, 14, 2, -2),
    Sketcher.Constraint("Horizontal", 3, 2, 4, 2),
    Sketcher.Constraint("Horizontal", 1, 2, 6, 2),
    Sketcher.Constraint("Horizontal", 5, 2, 20, 2),
    Sketcher.Constraint("Equal", 3, 5),
    Sketcher.Constraint("Equal", 7, 8),
    Sketcher.Constraint("Equal", 14, 17),
    Sketcher.Constraint("Equal", 27, 0),
    Sketcher.Constraint("Equal", 6, 9),
    Sketcher.Constraint("Equal", 15, 16),
    Sketcher.Constraint("DistanceX", 1, 2, 1, 1, 14.4),
    Sketcher.Constraint("DistanceX", 6, 2, 16, 2, 17.0),
    Sketcher.Constraint("DistanceX", 20, 2, 5, 2, 34.0),
    Sketcher.Constraint("DistanceX", 19, 2, 26, 2, 17.0),
    Sketcher.Constraint("DistanceX", 8, 2, 3, 2, 25.5),
    Sketcher.Constraint("DistanceY", -1, 1, 8, 2, 41.3),
    Sketcher.Constraint("DistanceY", 16, 2, -1, 1, 41.3),
])
sketch4.setExpression("Constraints[71]", "Params.sketch4_width")
pocket2 = body.newObject("PartDesign::Pocket", "Pocket001")
pocket2.Profile = sketch4
pocket2.setExpression("Length", "Params.pocket2_length")

# Sketch on YZ plane
sketch5 = body.newObject("Sketcher::SketchObject", "Sketch004")
sketch5.AttachmentSupport = (doc.getObject("YZ_Plane"), [""])
sketch5.MapMode = "FlatFace"
sketch5.addGeometry(Part.Circle(V(10.5, 0, 0), V(0, 0, 1), 1.2), False)
sketch5.addConstraint([
    Sketcher.Constraint("PointOnObject", 0, 3, -1),
    Sketcher.Constraint("Diameter", 0, 2.5),
    Sketcher.Constraint("DistanceX", -1, 1, 0, 3, 10.5),
])
sketch5.setExpression("Constraints[1]", "Params.sketch5_diameter")
pocket3 = body.newObject("PartDesign::Pocket", "Pocket002")
pocket3.Profile = sketch5
pocket3.Type = "ThroughAll"
pocket3.Midplane = True

doc.recompute()
